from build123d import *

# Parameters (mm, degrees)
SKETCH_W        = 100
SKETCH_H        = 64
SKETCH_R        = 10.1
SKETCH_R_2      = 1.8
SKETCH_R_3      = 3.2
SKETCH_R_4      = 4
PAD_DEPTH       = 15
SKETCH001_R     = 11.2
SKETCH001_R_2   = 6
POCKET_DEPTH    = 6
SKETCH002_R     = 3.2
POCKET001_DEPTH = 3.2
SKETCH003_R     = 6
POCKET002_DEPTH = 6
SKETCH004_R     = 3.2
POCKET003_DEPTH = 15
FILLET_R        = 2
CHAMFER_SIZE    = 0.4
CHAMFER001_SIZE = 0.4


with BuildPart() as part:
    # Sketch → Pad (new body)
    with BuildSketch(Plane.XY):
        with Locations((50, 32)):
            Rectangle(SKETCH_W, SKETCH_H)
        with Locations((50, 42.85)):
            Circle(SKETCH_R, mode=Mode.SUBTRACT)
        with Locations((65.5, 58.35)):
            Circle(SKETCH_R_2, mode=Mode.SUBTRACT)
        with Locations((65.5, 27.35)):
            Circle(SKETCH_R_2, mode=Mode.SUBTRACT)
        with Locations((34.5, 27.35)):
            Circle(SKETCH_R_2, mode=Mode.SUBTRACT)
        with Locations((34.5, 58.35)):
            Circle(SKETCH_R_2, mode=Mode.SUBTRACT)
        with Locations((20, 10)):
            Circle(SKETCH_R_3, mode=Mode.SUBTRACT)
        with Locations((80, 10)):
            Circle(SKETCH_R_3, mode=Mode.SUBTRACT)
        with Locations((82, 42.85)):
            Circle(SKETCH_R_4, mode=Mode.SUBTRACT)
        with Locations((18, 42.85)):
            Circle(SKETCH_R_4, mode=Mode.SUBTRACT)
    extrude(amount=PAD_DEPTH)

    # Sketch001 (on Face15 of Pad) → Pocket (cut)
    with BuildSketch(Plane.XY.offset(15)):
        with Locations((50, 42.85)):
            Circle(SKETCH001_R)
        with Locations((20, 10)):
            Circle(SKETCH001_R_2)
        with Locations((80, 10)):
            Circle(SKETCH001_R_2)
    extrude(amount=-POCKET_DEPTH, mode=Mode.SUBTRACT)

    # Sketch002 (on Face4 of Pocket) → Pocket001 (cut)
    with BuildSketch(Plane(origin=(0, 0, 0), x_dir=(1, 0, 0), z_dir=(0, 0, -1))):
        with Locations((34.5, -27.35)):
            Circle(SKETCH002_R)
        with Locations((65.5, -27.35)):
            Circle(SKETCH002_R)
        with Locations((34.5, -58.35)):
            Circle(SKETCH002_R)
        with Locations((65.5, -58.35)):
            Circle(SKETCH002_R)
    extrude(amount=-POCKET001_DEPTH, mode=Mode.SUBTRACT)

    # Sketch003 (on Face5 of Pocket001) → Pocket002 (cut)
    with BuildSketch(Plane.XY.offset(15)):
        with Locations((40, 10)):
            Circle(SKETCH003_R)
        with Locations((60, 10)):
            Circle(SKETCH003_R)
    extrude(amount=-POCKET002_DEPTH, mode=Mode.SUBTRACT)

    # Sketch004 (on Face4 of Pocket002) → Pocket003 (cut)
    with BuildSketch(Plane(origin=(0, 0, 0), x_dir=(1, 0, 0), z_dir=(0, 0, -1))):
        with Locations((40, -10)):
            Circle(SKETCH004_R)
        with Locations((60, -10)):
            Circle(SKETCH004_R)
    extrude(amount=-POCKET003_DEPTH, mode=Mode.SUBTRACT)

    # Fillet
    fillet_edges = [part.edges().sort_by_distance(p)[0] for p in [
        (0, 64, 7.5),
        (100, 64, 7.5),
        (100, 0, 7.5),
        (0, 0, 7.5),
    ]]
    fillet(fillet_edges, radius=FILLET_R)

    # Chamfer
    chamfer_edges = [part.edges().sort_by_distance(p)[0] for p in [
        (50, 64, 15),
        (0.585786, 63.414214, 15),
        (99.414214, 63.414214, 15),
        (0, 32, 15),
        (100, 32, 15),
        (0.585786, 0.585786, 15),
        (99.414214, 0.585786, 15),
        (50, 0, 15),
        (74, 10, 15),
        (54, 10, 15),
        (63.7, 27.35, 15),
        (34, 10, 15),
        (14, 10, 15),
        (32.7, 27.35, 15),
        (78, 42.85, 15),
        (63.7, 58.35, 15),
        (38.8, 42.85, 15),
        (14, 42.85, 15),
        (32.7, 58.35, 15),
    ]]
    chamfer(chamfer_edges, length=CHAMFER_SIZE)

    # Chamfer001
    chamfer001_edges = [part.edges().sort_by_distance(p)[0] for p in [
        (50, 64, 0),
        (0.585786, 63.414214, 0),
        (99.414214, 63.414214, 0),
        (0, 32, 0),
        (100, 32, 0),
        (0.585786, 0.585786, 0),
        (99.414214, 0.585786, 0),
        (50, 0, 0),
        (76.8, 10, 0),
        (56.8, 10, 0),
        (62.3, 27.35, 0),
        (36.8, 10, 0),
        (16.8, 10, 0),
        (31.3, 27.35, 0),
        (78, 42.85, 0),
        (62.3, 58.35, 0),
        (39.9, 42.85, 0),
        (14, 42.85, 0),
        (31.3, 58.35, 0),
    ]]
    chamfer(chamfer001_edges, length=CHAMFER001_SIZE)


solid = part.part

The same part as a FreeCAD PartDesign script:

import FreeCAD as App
import Part
import Sketcher

V = App.Vector
Q = App.Units.Quantity


def edges_at(feature, points):
    """Names of the edges that pass closest to the given points."""
    edges = feature.Shape.Edges
    near = lambda p: min(range(len(edges)), key=lambda i: edges[i].distToShape(Part.Vertex(*p))[0])
    return sorted({f"Edge{near(p) + 1}" for p in points})

doc = App.newDocument("Part")
params = doc.addObject("Spreadsheet::Sheet", "Params")
for row, (alias, value) in enumerate([
    ("sketch1_diameter", "8 mm"),
    ("sketch1_diameter2", "6.4 mm"),
    ("sketch1_diameter3", "3.6 mm"),
    ("sketch1_diameter4", "20.2 mm"),
    ("sketch1_width", "100 mm"),
    ("pad1_length", "15 mm"),
    ("sketch2_diameter", "12 mm"),
    ("sketch2_diameter2", "22.4 mm"),
    ("pocket1_length", "6 mm"),
    ("sketch3_diameter", "6.4 mm"),
    ("pocket2_length", "3.2 mm"),
    ("sketch4_diameter", "12 mm"),
    ("pocket3_length", "6 mm"),
    ("sketch5_diameter", "6.4 mm"),
    ("pocket4_length", "15 mm"),
    ("fillet_radius", "2 mm"),
    ("chamfer_size", "0.4 mm"),
    ("chamfer2_size", "0.4 mm"),
], start=1):
    params.set(f"A{row}", alias)
    params.set(f"B{row}", "=" + value)
    params.setAlias(f"B{row}", alias)

body = doc.addObject("PartDesign::Body", "Body")

sketch1 = doc.addObject("Sketcher::SketchObject", "Sketch")
body.addObject(sketch1)
sketch1.AttachmentSupport = (doc.XY_Plane, [""])
sketch1.MapMode = "FlatFace"
sketch1.addGeometry(Part.LineSegment(V(0, 64, 0), V(0, 0, 0)), False)
sketch1.addGeometry(Part.LineSegment(V(0, 0, 0), V(100, 0, 0)), False)
sketch1.addGeometry(Part.LineSegment(V(100, 0, 0), V(100, 64, 0)), False)
sketch1.addGeometry(Part.LineSegment(V(100, 64, 0), V(0, 64, 0)), False)
sketch1.addGeometry(Part.Circle(V(20, 10, 0), V(0, 0, 1), 3.2), False)
sketch1.addGeometry(Part.Circle(V(34.5, 27.4, 0), V(0, 0, 1), 1.8), False)
sketch1.addGeometry(Part.Circle(V(80, 10, 0), V(0, 0, 1), 3.2), False)
sketch1.addGeometry(Part.Circle(V(65.5, 27.4, 0), V(0, 0, 1), 1.8), False)
sketch1.addGeometry(Part.Circle(V(18, 42.9, 0), V(0, 0, 1), 4), False)
sketch1.addGeometry(Part.Circle(V(34.5, 58.4, 0), V(0, 0, 1), 1.8), False)
sketch1.addGeometry(Part.Circle(V(50, 42.9, 0), V(0, 0, 1), 10.1), False)
sketch1.addGeometry(Part.Circle(V(82, 42.9, 0), V(0, 0, 1), 4), False)
sketch1.addGeometry(Part.Circle(V(65.5, 58.4, 0), V(0, 0, 1), 1.8), False)
sketch1.addConstraint(Sketcher.Constraint("Coincident", 0, 2, 1, 1))
sketch1.addConstraint(Sketcher.Constraint("Coincident", 1, 2, 2, 1))
sketch1.addConstraint(Sketcher.Constraint("Coincident", 2, 2, 3, 1))
sketch1.addConstraint(Sketcher.Constraint("Coincident", 3, 2, 0, 1))
sketch1.addConstraint(Sketcher.Constraint("Vertical", 0))
sketch1.addConstraint(Sketcher.Constraint("Horizontal", 1))
sketch1.addConstraint(Sketcher.Constraint("Vertical", 2))
sketch1.addConstraint(Sketcher.Constraint("Horizontal", 3))
sketch1.addConstraint(Sketcher.Constraint("Coincident", 0, 2, -1, 1))
sketch1.addConstraint(Sketcher.Constraint("Equal", 4, 6))
sketch1.addConstraint(Sketcher.Constraint("Equal", 5, 7))
sketch1.addConstraint(Sketcher.Constraint("Equal", 7, 9))
sketch1.addConstraint(Sketcher.Constraint("Equal", 8, 11))
sketch1.addConstraint(Sketcher.Constraint("Equal", 9, 12))
sketch1.addConstraint(Sketcher.Constraint("Horizontal", 4, 3, 6, 3))
sketch1.addConstraint(Sketcher.Constraint("Horizontal", 5, 3, 7, 3))
sketch1.addConstraint(Sketcher.Constraint("Horizontal", 8, 3, 10, 3))
sketch1.addConstraint(Sketcher.Constraint("Horizontal", 10, 3, 11, 3))
sketch1.addConstraint(Sketcher.Constraint("Horizontal", 9, 3, 12, 3))
sketch1.addConstraint(Sketcher.Constraint("Vertical", 5, 3, 9, 3))
sketch1.addConstraint(Sketcher.Constraint("Vertical", 7, 3, 12, 3))
sketch1.addConstraint(Sketcher.Constraint("Diameter", 8, Q("8 mm")))
sketch1.addConstraint(Sketcher.Constraint("Diameter", 4, Q("6.4 mm")))
sketch1.addConstraint(Sketcher.Constraint("Diameter", 5, Q("3.6 mm")))
sketch1.addConstraint(Sketcher.Constraint("Diameter", 10, Q("20.2 mm")))
sketch1.addConstraint(Sketcher.Constraint("DistanceX", 1, 1, 1, 2, Q("100 mm")))
sketch1.addConstraint(Sketcher.Constraint("DistanceY", 0, 2, 0, 1, Q("64 mm")))
sketch1.addConstraint(Sketcher.Constraint("DistanceX", -1, 1, 4, 3, Q("20 mm")))
sketch1.addConstraint(Sketcher.Constraint("DistanceY", -1, 1, 4, 3, Q("10 mm")))
sketch1.addConstraint(Sketcher.Constraint("DistanceX", -1, 1, 6, 3, Q("80 mm")))
sketch1.addConstraint(Sketcher.Constraint("DistanceX", -1, 1, 8, 3, Q("18 mm")))
sketch1.addConstraint(Sketcher.Constraint("DistanceX", -1, 1, 10, 3, Q("50 mm")))
sketch1.addConstraint(Sketcher.Constraint("DistanceX", -1, 1, 11, 3, Q("82 mm")))
sketch1.addConstraint(Sketcher.Constraint("DistanceX", 5, 3, 7, 3, Q("31 mm")))
sketch1.addConstraint(Sketcher.Constraint("DistanceY", 5, 3, 9, 3, Q("31 mm")))
sketch1.addConstraint(Sketcher.Constraint("DistanceX", -1, 1, 5, 3, Q("34.5 mm")))
sketch1.addConstraint(Sketcher.Constraint("DistanceY", 5, 3, 8, 3, Q("15.5 mm")))
sketch1.addConstraint(Sketcher.Constraint("DistanceY", -1, 1, 5, 3, Q("27.35 mm")))
sketch1.setExpression("Constraints[21]", "Params.sketch1_diameter")
sketch1.setExpression("Constraints[22]", "Params.sketch1_diameter2")
sketch1.setExpression("Constraints[23]", "Params.sketch1_diameter3")
sketch1.setExpression("Constraints[24]", "Params.sketch1_diameter4")
sketch1.setExpression("Constraints[25]", "Params.sketch1_width")
pad1 = doc.addObject("PartDesign::Pad", "Pad")
body.addObject(pad1)
pad1.Profile = sketch1
pad1.setExpression("Length", "Params.pad1_length")

sketch2 = doc.addObject("Sketcher::SketchObject", "Sketch001")
body.addObject(sketch2)
sketch2.AttachmentSupport = (doc.XY_Plane, [""])
sketch2.MapMode = "FlatFace"
sketch2.AttachmentOffset = App.Placement(V(0, 0, 15), App.Rotation())
sketch2.addGeometry(Part.Circle(V(50, 43, 0), V(0, 0, 1), 11), False)
sketch2.addGeometry(Part.Circle(V(20, 10, 0), V(0, 0, 1), 6), False)
sketch2.addGeometry(Part.Circle(V(80, 10, 0), V(0, 0, 1), 6), False)
sketch2.addConstraint(Sketcher.Constraint("Equal", 1, 2))
sketch2.addConstraint(Sketcher.Constraint("Horizontal", 1, 3, 2, 3))
sketch2.addConstraint(Sketcher.Constraint("Diameter", 1, Q("12 mm")))
sketch2.addConstraint(Sketcher.Constraint("Diameter", 0, Q("22.4 mm")))
sketch2.addConstraint(Sketcher.Constraint("DistanceX", -1, 1, 0, 3, Q("50 mm")))
sketch2.addConstraint(Sketcher.Constraint("DistanceX", -1, 1, 1, 3, Q("20 mm")))
sketch2.addConstraint(Sketcher.Constraint("DistanceY", -1, 1, 1, 3, Q("10 mm")))
sketch2.addConstraint(Sketcher.Constraint("DistanceX", -1, 1, 2, 3, Q("80 mm")))
sketch2.addConstraint(Sketcher.Constraint("DistanceY", -1, 1, 0, 3, Q("42.85 mm")))
sketch2.setExpression("Constraints[2]", "Params.sketch2_diameter")
sketch2.setExpression("Constraints[3]", "Params.sketch2_diameter2")
pocket1 = doc.addObject("PartDesign::Pocket", "Pocket")
body.addObject(pocket1)
pocket1.Profile = sketch2
pocket1.setExpression("Length", "Params.pocket1_length")

sketch3 = doc.addObject("Sketcher::SketchObject", "Sketch002")
body.addObject(sketch3)
sketch3.AttachmentSupport = (doc.XY_Plane, [""])
sketch3.MapMode = "FlatFace"
sketch3.addGeometry(Part.Circle(V(34.5, 27.4, 0), V(0, 0, 1), 3.2), False)
sketch3.addGeometry(Part.Circle(V(65.5, 27.4, 0), V(0, 0, 1), 3.2), False)
sketch3.addGeometry(Part.Circle(V(34.5, 58.4, 0), V(0, 0, 1), 3.2), False)
sketch3.addGeometry(Part.Circle(V(65.5, 58.4, 0), V(0, 0, 1), 3.2), False)
sketch3.addConstraint(Sketcher.Constraint("Equal", 0, 1))
sketch3.addConstraint(Sketcher.Constraint("Equal", 1, 2))
sketch3.addConstraint(Sketcher.Constraint("Equal", 2, 3))
sketch3.addConstraint(Sketcher.Constraint("Horizontal", 0, 3, 1, 3))
sketch3.addConstraint(Sketcher.Constraint("Horizontal", 2, 3, 3, 3))
sketch3.addConstraint(Sketcher.Constraint("Vertical", 0, 3, 2, 3))
sketch3.addConstraint(Sketcher.Constraint("Vertical", 1, 3, 3, 3))
sketch3.addConstraint(Sketcher.Constraint("Diameter", 0, Q("6.4 mm")))
sketch3.addConstraint(Sketcher.Constraint("DistanceX", 0, 3, 1, 3, Q("31 mm")))
sketch3.addConstraint(Sketcher.Constraint("DistanceY", 0, 3, 2, 3, Q("31 mm")))
sketch3.addConstraint(Sketcher.Constraint("DistanceX", -1, 1, 0, 3, Q("34.5 mm")))
sketch3.addConstraint(Sketcher.Constraint("DistanceY", -1, 1, 0, 3, Q("27.35 mm")))
sketch3.setExpression("Constraints[7]", "Params.sketch3_diameter")
pocket2 = doc.addObject("PartDesign::Pocket", "Pocket001")
body.addObject(pocket2)
pocket2.Profile = sketch3
pocket2.setExpression("Length", "Params.pocket2_length")
pocket2.Reversed = True

sketch4 = doc.addObject("Sketcher::SketchObject", "Sketch003")
body.addObject(sketch4)
sketch4.AttachmentSupport = (doc.XY_Plane, [""])
sketch4.MapMode = "FlatFace"
sketch4.AttachmentOffset = App.Placement(V(0, 0, 15), App.Rotation())
sketch4.addGeometry(Part.Circle(V(40, 10, 0), V(0, 0, 1), 6), False)
sketch4.addGeometry(Part.Circle(V(60, 10, 0), V(0, 0, 1), 6), False)
sketch4.addConstraint(Sketcher.Constraint("Equal", 0, 1))
sketch4.addConstraint(Sketcher.Constraint("Horizontal", 0, 3, 1, 3))
sketch4.addConstraint(Sketcher.Constraint("Diameter", 0, Q("12 mm")))
sketch4.addConstraint(Sketcher.Constraint("DistanceX", -1, 1, 0, 3, Q("40 mm")))
sketch4.addConstraint(Sketcher.Constraint("DistanceY", -1, 1, 0, 3, Q("10 mm")))
sketch4.addConstraint(Sketcher.Constraint("DistanceX", -1, 1, 1, 3, Q("60 mm")))
sketch4.setExpression("Constraints[2]", "Params.sketch4_diameter")
pocket3 = doc.addObject("PartDesign::Pocket", "Pocket002")
body.addObject(pocket3)
pocket3.Profile = sketch4
pocket3.setExpression("Length", "Params.pocket3_length")

sketch5 = doc.addObject("Sketcher::SketchObject", "Sketch004")
body.addObject(sketch5)
sketch5.AttachmentSupport = (doc.XY_Plane, [""])
sketch5.MapMode = "FlatFace"
sketch5.addGeometry(Part.Circle(V(40, 10, 0), V(0, 0, 1), 3.2), False)
sketch5.addGeometry(Part.Circle(V(60, 10, 0), V(0, 0, 1), 3.2), False)
sketch5.addConstraint(Sketcher.Constraint("Equal", 0, 1))
sketch5.addConstraint(Sketcher.Constraint("Horizontal", 0, 3, 1, 3))
sketch5.addConstraint(Sketcher.Constraint("Diameter", 0, Q("6.4 mm")))
sketch5.addConstraint(Sketcher.Constraint("DistanceX", -1, 1, 0, 3, Q("40 mm")))
sketch5.addConstraint(Sketcher.Constraint("DistanceY", -1, 1, 0, 3, Q("10 mm")))
sketch5.addConstraint(Sketcher.Constraint("DistanceX", -1, 1, 1, 3, Q("60 mm")))
sketch5.setExpression("Constraints[2]", "Params.sketch5_diameter")
pocket4 = doc.addObject("PartDesign::Pocket", "Pocket003")
body.addObject(pocket4)
pocket4.Profile = sketch5
pocket4.setExpression("Length", "Params.pocket4_length")
pocket4.Reversed = True
doc.recompute()

fillet = doc.addObject("PartDesign::Fillet", "Fillet")
body.addObject(fillet)
fillet.Base = (pocket4, edges_at(pocket4, [
    (0, 64, 7.5),
    (100, 64, 7.5),
    (100, 0, 7.5),
    (0, 0, 7.5),
]))
fillet.setExpression("Radius", "Params.fillet_radius")
doc.recompute()

chamfer = doc.addObject("PartDesign::Chamfer", "Chamfer")
body.addObject(chamfer)
chamfer.Base = (fillet, edges_at(fillet, [
    (50, 64, 15),
    (0.586, 63.414, 15),
    (99.414, 63.414, 15),
    (0, 32, 15),
    (100, 32, 15),
    (0.586, 0.586, 15),
    (99.414, 0.586, 15),
    (50, 0, 15),
    (74, 10, 15),
    (54, 10, 15),
    (63.7, 27.35, 15),
    (34, 10, 15),
    (14, 10, 15),
    (32.7, 27.35, 15),
    (78, 42.85, 15),
    (63.7, 58.35, 15),
    (38.8, 42.85, 15),
    (14, 42.85, 15),
    (32.7, 58.35, 15),
]))
chamfer.setExpression("Size", "Params.chamfer_size")
doc.recompute()

chamfer2 = doc.addObject("PartDesign::Chamfer", "Chamfer001")
body.addObject(chamfer2)
chamfer2.Base = (chamfer, edges_at(chamfer, [
    (50, 64, 0),
    (0.586, 63.414, 0),
    (99.414, 63.414, 0),
    (0, 32, 0),
    (100, 32, 0),
    (0.586, 0.586, 0),
    (99.414, 0.586, 0),
    (50, 0, 0),
    (76.8, 10, 0),
    (56.8, 10, 0),
    (62.3, 27.35, 0),
    (36.8, 10, 0),
    (16.8, 10, 0),
    (31.3, 27.35, 0),
    (78, 42.85, 0),
    (62.3, 58.35, 0),
    (39.9, 42.85, 0),
    (14, 42.85, 0),
    (31.3, 58.35, 0),
]))
chamfer2.setExpression("Size", "Params.chamfer2_size")

doc.recompute()
